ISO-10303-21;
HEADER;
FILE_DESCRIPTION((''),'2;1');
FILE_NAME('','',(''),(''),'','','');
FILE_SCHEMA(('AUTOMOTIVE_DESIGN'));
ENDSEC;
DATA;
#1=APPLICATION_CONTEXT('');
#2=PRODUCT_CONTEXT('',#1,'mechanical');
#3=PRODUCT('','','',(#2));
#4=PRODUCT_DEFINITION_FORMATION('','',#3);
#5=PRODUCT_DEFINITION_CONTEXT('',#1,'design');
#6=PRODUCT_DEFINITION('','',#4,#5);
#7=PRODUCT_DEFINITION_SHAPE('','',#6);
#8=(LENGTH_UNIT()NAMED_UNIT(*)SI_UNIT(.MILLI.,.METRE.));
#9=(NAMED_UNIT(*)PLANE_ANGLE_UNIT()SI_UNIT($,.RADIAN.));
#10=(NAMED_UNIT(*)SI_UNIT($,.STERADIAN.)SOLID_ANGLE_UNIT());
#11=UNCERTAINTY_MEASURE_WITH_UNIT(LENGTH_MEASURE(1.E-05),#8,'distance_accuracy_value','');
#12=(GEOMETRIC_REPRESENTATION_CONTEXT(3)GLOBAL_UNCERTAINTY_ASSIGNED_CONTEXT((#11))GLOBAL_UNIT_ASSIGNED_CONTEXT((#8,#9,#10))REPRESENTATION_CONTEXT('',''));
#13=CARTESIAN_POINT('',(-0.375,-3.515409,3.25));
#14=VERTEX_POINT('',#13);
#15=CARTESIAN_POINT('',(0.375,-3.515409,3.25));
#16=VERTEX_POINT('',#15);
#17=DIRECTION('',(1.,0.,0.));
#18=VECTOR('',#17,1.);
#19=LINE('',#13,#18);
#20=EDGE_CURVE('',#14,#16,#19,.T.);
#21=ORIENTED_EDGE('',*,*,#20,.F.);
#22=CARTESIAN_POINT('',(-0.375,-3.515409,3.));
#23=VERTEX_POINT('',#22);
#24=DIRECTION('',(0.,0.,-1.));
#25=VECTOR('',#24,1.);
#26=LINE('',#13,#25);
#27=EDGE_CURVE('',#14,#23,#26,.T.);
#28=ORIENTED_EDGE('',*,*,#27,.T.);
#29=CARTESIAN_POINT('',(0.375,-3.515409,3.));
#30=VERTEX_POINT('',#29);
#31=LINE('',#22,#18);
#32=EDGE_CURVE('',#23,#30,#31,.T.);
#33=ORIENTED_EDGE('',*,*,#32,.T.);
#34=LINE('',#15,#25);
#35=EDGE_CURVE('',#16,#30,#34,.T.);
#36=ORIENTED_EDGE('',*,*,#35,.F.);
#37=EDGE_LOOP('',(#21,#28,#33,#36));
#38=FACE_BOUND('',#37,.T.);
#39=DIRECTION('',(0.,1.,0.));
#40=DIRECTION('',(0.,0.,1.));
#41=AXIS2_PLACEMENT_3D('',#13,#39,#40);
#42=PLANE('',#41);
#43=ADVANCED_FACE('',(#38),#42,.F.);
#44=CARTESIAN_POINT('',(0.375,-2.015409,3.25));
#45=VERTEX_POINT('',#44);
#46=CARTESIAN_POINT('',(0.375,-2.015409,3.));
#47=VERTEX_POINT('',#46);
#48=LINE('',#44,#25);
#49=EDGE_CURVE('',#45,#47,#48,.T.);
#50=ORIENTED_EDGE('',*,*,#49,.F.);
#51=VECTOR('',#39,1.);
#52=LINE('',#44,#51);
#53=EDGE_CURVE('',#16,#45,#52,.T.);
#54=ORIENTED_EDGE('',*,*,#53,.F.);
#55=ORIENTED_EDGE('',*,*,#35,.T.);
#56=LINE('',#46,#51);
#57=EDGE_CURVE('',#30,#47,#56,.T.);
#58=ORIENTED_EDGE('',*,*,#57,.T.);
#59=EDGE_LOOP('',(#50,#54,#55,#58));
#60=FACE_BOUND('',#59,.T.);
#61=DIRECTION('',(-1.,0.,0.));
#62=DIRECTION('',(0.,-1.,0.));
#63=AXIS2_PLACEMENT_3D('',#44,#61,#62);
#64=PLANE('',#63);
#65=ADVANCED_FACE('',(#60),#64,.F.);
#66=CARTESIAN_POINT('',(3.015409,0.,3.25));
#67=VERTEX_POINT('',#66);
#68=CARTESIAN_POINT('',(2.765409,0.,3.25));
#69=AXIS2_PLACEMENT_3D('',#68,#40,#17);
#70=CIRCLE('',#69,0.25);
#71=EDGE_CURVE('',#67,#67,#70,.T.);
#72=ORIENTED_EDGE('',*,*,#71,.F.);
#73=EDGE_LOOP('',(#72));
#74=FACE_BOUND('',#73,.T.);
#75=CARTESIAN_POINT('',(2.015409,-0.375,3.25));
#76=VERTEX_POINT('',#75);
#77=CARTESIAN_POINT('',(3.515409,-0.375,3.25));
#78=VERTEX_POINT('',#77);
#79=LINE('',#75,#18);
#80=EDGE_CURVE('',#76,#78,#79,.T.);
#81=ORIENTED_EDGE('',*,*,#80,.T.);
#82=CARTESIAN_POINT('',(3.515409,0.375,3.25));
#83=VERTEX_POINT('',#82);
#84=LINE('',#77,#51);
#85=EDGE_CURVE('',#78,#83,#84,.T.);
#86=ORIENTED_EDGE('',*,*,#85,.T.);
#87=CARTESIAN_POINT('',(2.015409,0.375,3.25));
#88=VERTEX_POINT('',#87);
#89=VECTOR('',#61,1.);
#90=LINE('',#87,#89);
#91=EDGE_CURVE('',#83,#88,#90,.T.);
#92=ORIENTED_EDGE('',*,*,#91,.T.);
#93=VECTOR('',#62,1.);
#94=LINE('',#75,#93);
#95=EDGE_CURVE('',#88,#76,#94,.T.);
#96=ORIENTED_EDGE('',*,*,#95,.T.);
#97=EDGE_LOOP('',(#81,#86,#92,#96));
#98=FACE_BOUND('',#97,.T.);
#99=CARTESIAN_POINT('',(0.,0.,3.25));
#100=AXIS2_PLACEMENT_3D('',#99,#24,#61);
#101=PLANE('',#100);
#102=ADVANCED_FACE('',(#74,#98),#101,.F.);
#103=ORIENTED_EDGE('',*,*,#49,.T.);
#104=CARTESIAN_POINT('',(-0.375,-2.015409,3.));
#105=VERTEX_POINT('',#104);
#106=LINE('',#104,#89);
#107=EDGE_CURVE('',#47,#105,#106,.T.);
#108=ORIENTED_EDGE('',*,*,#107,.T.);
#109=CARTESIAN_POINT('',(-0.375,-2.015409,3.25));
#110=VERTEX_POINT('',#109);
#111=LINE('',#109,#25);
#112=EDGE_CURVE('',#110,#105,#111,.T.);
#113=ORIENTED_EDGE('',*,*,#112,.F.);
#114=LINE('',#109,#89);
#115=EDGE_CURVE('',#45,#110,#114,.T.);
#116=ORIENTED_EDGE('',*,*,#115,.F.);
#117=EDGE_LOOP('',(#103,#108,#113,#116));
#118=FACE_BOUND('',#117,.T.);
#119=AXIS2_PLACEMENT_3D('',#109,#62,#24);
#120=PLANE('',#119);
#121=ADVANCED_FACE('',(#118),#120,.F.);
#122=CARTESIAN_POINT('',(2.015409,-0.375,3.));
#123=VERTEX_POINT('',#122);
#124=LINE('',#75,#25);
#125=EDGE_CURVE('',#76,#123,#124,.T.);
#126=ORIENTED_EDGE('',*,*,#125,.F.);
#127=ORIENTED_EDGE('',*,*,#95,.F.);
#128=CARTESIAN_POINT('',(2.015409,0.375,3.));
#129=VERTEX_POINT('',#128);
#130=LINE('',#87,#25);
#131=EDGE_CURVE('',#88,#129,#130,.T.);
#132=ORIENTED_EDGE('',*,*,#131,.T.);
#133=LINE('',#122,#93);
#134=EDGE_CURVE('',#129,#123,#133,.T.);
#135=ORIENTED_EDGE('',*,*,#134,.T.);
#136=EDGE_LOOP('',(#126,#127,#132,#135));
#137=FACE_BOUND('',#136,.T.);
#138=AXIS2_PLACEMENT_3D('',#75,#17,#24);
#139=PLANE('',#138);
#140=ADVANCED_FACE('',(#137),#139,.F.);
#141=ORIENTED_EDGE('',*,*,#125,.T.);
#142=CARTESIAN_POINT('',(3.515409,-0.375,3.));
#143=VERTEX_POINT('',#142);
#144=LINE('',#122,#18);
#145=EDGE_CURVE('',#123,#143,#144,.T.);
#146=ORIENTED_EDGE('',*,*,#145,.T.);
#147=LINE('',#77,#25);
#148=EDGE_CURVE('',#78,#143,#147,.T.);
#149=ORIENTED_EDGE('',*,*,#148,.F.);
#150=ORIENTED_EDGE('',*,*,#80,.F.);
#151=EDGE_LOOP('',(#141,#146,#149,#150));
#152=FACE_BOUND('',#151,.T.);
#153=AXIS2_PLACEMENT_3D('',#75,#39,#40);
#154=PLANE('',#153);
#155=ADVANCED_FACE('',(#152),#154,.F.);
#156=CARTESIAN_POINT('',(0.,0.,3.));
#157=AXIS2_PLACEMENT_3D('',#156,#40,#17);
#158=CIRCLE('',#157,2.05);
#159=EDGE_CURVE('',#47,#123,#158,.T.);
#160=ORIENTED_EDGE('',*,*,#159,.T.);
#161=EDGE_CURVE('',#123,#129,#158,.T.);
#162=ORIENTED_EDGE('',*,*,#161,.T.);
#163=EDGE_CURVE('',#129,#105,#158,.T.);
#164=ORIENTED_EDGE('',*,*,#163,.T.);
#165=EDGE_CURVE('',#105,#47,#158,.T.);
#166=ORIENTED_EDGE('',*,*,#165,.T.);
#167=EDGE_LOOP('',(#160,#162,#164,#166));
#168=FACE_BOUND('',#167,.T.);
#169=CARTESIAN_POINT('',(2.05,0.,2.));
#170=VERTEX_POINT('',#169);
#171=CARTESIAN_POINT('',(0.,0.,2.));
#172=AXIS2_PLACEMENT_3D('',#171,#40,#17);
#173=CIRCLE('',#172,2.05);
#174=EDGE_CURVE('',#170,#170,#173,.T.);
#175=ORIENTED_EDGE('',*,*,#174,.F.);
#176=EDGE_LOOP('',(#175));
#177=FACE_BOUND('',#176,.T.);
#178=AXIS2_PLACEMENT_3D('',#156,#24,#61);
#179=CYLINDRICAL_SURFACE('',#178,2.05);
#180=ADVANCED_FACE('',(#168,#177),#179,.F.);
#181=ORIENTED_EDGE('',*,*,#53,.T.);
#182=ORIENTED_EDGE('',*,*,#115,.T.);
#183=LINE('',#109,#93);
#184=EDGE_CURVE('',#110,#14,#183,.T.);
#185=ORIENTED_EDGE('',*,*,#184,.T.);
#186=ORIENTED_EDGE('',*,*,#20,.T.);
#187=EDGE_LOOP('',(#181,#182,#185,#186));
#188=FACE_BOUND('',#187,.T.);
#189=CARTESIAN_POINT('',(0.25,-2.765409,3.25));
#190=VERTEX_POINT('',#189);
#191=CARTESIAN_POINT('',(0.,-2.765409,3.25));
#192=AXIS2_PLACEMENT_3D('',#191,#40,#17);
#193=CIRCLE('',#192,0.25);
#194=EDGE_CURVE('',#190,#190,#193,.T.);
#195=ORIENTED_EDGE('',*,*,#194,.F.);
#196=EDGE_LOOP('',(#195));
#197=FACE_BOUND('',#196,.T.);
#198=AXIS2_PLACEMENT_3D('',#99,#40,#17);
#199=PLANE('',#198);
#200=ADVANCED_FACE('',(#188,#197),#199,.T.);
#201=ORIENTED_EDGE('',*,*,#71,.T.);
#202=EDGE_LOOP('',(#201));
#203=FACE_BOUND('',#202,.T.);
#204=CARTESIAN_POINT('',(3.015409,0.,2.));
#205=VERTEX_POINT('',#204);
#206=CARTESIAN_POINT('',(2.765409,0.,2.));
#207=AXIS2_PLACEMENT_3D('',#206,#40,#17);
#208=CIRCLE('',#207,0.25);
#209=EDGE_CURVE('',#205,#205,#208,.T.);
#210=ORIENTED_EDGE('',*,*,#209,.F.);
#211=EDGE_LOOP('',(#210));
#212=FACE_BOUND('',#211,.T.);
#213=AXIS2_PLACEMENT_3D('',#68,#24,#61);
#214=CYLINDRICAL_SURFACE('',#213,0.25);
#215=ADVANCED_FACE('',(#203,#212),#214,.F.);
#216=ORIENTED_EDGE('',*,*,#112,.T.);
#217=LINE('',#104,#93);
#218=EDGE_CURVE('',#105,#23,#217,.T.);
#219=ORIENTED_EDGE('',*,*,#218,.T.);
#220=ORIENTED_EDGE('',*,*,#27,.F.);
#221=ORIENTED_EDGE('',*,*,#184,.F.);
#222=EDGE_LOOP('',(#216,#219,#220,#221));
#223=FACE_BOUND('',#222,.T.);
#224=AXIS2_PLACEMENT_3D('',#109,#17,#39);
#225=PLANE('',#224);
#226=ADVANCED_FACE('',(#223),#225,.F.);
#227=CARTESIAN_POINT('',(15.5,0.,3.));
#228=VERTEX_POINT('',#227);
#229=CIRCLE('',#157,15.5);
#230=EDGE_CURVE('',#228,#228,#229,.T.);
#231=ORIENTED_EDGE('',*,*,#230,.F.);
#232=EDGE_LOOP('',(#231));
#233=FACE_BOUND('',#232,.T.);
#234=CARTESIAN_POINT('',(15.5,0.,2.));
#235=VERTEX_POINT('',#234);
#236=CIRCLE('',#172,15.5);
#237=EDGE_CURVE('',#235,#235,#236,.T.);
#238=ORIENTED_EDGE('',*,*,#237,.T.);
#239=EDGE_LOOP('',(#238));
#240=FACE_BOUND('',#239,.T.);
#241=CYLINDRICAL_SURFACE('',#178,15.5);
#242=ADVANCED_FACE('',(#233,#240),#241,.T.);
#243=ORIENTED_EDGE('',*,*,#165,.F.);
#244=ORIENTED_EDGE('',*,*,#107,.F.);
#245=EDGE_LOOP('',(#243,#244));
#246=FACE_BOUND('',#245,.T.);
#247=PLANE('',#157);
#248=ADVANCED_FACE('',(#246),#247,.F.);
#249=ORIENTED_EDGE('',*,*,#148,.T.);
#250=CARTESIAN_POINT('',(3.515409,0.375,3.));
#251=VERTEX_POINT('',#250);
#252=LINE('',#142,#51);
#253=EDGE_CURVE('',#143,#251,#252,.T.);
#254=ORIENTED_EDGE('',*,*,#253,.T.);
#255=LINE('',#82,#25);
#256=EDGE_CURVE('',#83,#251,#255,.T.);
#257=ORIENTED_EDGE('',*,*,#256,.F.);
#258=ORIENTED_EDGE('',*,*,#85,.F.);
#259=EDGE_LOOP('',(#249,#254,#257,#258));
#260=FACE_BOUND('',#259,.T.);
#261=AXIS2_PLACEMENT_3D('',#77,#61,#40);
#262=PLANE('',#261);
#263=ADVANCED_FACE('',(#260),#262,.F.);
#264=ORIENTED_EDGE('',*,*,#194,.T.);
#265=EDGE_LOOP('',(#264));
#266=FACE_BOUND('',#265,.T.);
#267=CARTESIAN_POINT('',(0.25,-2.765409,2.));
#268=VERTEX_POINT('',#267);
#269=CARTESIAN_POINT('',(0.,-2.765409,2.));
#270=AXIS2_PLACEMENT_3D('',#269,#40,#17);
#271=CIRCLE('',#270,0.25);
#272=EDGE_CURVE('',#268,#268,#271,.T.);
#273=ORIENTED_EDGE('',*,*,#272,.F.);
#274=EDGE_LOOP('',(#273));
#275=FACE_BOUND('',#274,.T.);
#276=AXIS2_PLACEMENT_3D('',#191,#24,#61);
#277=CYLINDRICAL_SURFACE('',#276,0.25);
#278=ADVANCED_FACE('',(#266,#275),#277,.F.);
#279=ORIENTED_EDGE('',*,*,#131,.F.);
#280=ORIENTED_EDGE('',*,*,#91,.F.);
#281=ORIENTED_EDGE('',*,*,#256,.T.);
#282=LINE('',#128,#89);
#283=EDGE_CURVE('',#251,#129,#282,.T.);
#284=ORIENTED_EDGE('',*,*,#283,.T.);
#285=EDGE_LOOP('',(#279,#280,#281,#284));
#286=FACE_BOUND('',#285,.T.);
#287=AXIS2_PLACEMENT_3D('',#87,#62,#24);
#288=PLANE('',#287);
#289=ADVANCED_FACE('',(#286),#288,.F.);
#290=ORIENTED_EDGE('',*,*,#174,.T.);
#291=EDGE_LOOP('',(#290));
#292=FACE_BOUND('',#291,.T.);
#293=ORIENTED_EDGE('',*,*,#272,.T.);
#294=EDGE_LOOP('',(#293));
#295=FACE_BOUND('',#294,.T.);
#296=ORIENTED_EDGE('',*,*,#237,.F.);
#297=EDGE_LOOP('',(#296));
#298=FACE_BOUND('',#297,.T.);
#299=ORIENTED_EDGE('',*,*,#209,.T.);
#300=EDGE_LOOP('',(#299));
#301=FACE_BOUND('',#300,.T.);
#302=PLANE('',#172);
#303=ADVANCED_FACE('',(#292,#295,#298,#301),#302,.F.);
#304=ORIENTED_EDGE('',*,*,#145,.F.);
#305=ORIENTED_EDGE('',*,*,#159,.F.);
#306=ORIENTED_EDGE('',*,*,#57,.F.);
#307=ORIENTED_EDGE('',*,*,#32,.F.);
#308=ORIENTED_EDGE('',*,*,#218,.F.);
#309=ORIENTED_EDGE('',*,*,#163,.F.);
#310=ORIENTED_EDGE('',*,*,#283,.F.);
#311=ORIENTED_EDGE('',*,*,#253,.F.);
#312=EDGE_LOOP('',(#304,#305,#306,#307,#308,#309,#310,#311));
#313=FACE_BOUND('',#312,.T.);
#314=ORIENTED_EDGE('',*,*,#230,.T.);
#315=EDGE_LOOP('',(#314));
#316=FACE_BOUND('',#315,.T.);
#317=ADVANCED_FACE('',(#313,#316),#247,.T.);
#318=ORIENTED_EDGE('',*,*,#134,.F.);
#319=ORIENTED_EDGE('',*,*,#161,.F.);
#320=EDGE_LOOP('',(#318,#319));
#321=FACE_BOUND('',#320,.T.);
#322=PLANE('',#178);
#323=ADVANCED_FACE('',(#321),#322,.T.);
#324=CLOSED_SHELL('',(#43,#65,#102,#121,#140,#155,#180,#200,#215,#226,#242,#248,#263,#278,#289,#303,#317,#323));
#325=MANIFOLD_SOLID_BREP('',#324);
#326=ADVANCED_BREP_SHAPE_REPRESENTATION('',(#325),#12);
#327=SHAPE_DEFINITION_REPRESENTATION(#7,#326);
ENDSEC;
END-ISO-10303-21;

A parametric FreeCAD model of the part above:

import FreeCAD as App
import Part
import Sketcher
from FreeCAD import Vector
Q = App.Units.Quantity

doc = App.newDocument("Part")
params = doc.addObject("Spreadsheet::Sheet", "Params")
for row, (alias, value) in enumerate([
    ("sketch1_diameter", "31 mm"),
    ("sketch1_diameter2", "4.1 mm"),
    ("pad1_length", "1 mm"),
    ("sketch2_diameter", "0.5 mm"),
    ("sketch2_width", "1.5 mm"),
    ("sketch2_width2", "0.75 mm"),
    ("pad2_length", "0.25 mm"),
    ("sketch3_diameter", "0.5 mm"),
], start=1):
    params.set(f"A{row}", alias)
    params.set(f"B{row}", "=" + value)
    params.setAlias(f"B{row}", alias)

body = doc.addObject("PartDesign::Body", "Body")

# Sketch on XY plane
sketch1 = body.newObject("Sketcher::SketchObject", "Sketch")
sketch1.AttachmentSupport = (doc.getObject("XY_Plane"), [""])
sketch1.MapMode = "FlatFace"
sketch1.AttachmentOffset = App.Placement(Vector(0, 0, 2), App.Rotation())
sketch1.addGeometry([
    Part.Circle(Vector(0, 0, 0), Vector(0, 0, 1), 15.5),
    Part.Circle(Vector(0, 0, 0), Vector(0, 0, 1), 2),
], False)
sketch1.addConstraint([
    Sketcher.Constraint("Coincident", 0, 3, -1, 1),
    Sketcher.Constraint("Coincident", 1, 3, -1, 1),
    Sketcher.Constraint("Diameter", 0, Q("31 mm")),
    Sketcher.Constraint("Diameter", 1, Q("4.1 mm")),
])
sketch1.setExpression("Constraints[2]", "Params.sketch1_diameter")
sketch1.setExpression("Constraints[3]", "Params.sketch1_diameter2")
pad1 = body.newObject("PartDesign::Pad", "Pad")
pad1.Profile = sketch1
pad1.setExpression("Length", "Params.pad1_length")

# Sketch on XY plane
sketch2 = body.newObject("Sketcher::SketchObject", "Sketch001")
sketch2.AttachmentSupport = (doc.getObject("XY_Plane"), [""])
sketch2.MapMode = "FlatFace"
sketch2.AttachmentOffset = App.Placement(Vector(0, 0, 3), App.Rotation())
sketch2.addGeometry([
    Part.LineSegment(Vector(2.02, 0.38, 0), Vector(2.02, -0.38, 0)),  # 0
    Part.LineSegment(Vector(2.02, -0.38, 0), Vector(3.52, -0.38, 0)),  # 1
    Part.LineSegment(Vector(3.52, -0.38, 0), Vector(3.52, 0.38, 0)),  # 2
    Part.LineSegment(Vector(3.52, 0.38, 0), Vector(2.02, 0.38, 0)),  # 3
    Part.Circle(Vector(2.77, 0, 0), Vector(0, 0, 1), 0.25),  # 4
    Part.LineSegment(Vector(-0.38, -2.02, 0), Vector(-0.38, -3.52, 0)),  # 5
    Part.LineSegment(Vector(-0.38, -3.52, 0), Vector(0.38, -3.52, 0)),  # 6
    Part.LineSegment(Vector(0.38, -3.52, 0), Vector(0.38, -2.02, 0)),  # 7
    Part.LineSegment(Vector(0.38, -2.02, 0), Vector(-0.38, -2.02, 0)),  # 8
    Part.Circle(Vector(0, -2.77, 0), Vector(0, 0, 1), 0.25),  # 9
], False)
sketch2.addConstraint([
    Sketcher.Constraint("Coincident", 0, 2, 1, 1),
    Sketcher.Constraint("Coincident", 1, 2, 2, 1),
    Sketcher.Constraint("Coincident", 2, 2, 3, 1),
    Sketcher.Constraint("Coincident", 3, 2, 0, 1),
    Sketcher.Constraint("Coincident", 5, 2, 6, 1),
    Sketcher.Constraint("Coincident", 6, 2, 7, 1),
    Sketcher.Constraint("Coincident", 7, 2, 8, 1),
    Sketcher.Constraint("Coincident", 8, 2, 5, 1),
    Sketcher.Constraint("Vertical", 0),
    Sketcher.Constraint("Horizontal", 1),
    Sketcher.Constraint("Vertical", 2),
    Sketcher.Constraint("Horizontal", 3),
    Sketcher.Constraint("Vertical", 5),
    Sketcher.Constraint("Horizontal", 6),
    Sketcher.Constraint("Vertical", 7),
    Sketcher.Constraint("Horizontal", 8),
    Sketcher.Constraint("Equal", 4, 9),
    Sketcher.Constraint("PointOnObject", 4, 3, -1),
    Sketcher.Constraint("PointOnObject", 9, 3, -2),
    Sketcher.Constraint("Equal", 8, 0),
    Sketcher.Constraint("Equal", 3, 5),
    Sketcher.Constraint("Diameter", 4, Q("0.5 mm")),
    Sketcher.Constraint("DistanceX", 1, 1, 1, 2, Q("1.5 mm")),
    Sketcher.Constraint("DistanceX", 6, 1, 6, 2, Q("0.75 mm")),
    Sketcher.Constraint("DistanceX", 0, 2, 4, 3, Q("0.75 mm")),
    Sketcher.Constraint("DistanceY", 5, 2, 9, 3, Q("0.75 mm")),
    Sketcher.Constraint("DistanceY", 0, 2, -1, 1, Q("0.375 mm")),
    Sketcher.Constraint("DistanceX", 5, 2, -1, 1, Q("0.375 mm")),
    Sketcher.Constraint("DistanceX", -1, 1, 4, 3, Q("2.765409 mm")),
    Sketcher.Constraint("DistanceY", 9, 3, -1, 1, Q("2.765409 mm")),
])
sketch2.setExpression("Constraints[21]", "Params.sketch2_diameter")
sketch2.setExpression("Constraints[22]", "Params.sketch2_width")
sketch2.setExpression("Constraints[23]", "Params.sketch2_width2")
pad2 = body.newObject("PartDesign::Pad", "Pad001")
pad2.Profile = sketch2
pad2.setExpression("Length", "Params.pad2_length")

# Sketch on XY plane
sketch3 = body.newObject("Sketcher::SketchObject", "Sketch002")
sketch3.AttachmentSupport = (doc.getObject("XY_Plane"), [""])
sketch3.MapMode = "FlatFace"
sketch3.AttachmentOffset = App.Placement(Vector(0, 0, 3), App.Rotation())
sketch3.addGeometry([
    Part.Circle(Vector(0, -2.77, 0), Vector(0, 0, 1), 0.25),
    Part.Circle(Vector(2.77, 0, 0), Vector(0, 0, 1), 0.25),
], False)
sketch3.addConstraint([
    Sketcher.Constraint("Equal", 0, 1),
    Sketcher.Constraint("PointOnObject", 0, 3, -2),
    Sketcher.Constraint("PointOnObject", 1, 3, -1),
    Sketcher.Constraint("Diameter", 0, Q("0.5 mm")),
    Sketcher.Constraint("DistanceY", 0, 3, -1, 1, Q("2.765409 mm")),
    Sketcher.Constraint("DistanceX", -1, 1, 1, 3, Q("2.765409 mm")),
])
sketch3.setExpression("Constraints[3]", "Params.sketch3_diameter")
pocket1 = body.newObject("PartDesign::Pocket", "Pocket")
pocket1.Profile = sketch3
pocket1.Type = "ThroughAll"
pocket1.Midplane = True

doc.recompute()
